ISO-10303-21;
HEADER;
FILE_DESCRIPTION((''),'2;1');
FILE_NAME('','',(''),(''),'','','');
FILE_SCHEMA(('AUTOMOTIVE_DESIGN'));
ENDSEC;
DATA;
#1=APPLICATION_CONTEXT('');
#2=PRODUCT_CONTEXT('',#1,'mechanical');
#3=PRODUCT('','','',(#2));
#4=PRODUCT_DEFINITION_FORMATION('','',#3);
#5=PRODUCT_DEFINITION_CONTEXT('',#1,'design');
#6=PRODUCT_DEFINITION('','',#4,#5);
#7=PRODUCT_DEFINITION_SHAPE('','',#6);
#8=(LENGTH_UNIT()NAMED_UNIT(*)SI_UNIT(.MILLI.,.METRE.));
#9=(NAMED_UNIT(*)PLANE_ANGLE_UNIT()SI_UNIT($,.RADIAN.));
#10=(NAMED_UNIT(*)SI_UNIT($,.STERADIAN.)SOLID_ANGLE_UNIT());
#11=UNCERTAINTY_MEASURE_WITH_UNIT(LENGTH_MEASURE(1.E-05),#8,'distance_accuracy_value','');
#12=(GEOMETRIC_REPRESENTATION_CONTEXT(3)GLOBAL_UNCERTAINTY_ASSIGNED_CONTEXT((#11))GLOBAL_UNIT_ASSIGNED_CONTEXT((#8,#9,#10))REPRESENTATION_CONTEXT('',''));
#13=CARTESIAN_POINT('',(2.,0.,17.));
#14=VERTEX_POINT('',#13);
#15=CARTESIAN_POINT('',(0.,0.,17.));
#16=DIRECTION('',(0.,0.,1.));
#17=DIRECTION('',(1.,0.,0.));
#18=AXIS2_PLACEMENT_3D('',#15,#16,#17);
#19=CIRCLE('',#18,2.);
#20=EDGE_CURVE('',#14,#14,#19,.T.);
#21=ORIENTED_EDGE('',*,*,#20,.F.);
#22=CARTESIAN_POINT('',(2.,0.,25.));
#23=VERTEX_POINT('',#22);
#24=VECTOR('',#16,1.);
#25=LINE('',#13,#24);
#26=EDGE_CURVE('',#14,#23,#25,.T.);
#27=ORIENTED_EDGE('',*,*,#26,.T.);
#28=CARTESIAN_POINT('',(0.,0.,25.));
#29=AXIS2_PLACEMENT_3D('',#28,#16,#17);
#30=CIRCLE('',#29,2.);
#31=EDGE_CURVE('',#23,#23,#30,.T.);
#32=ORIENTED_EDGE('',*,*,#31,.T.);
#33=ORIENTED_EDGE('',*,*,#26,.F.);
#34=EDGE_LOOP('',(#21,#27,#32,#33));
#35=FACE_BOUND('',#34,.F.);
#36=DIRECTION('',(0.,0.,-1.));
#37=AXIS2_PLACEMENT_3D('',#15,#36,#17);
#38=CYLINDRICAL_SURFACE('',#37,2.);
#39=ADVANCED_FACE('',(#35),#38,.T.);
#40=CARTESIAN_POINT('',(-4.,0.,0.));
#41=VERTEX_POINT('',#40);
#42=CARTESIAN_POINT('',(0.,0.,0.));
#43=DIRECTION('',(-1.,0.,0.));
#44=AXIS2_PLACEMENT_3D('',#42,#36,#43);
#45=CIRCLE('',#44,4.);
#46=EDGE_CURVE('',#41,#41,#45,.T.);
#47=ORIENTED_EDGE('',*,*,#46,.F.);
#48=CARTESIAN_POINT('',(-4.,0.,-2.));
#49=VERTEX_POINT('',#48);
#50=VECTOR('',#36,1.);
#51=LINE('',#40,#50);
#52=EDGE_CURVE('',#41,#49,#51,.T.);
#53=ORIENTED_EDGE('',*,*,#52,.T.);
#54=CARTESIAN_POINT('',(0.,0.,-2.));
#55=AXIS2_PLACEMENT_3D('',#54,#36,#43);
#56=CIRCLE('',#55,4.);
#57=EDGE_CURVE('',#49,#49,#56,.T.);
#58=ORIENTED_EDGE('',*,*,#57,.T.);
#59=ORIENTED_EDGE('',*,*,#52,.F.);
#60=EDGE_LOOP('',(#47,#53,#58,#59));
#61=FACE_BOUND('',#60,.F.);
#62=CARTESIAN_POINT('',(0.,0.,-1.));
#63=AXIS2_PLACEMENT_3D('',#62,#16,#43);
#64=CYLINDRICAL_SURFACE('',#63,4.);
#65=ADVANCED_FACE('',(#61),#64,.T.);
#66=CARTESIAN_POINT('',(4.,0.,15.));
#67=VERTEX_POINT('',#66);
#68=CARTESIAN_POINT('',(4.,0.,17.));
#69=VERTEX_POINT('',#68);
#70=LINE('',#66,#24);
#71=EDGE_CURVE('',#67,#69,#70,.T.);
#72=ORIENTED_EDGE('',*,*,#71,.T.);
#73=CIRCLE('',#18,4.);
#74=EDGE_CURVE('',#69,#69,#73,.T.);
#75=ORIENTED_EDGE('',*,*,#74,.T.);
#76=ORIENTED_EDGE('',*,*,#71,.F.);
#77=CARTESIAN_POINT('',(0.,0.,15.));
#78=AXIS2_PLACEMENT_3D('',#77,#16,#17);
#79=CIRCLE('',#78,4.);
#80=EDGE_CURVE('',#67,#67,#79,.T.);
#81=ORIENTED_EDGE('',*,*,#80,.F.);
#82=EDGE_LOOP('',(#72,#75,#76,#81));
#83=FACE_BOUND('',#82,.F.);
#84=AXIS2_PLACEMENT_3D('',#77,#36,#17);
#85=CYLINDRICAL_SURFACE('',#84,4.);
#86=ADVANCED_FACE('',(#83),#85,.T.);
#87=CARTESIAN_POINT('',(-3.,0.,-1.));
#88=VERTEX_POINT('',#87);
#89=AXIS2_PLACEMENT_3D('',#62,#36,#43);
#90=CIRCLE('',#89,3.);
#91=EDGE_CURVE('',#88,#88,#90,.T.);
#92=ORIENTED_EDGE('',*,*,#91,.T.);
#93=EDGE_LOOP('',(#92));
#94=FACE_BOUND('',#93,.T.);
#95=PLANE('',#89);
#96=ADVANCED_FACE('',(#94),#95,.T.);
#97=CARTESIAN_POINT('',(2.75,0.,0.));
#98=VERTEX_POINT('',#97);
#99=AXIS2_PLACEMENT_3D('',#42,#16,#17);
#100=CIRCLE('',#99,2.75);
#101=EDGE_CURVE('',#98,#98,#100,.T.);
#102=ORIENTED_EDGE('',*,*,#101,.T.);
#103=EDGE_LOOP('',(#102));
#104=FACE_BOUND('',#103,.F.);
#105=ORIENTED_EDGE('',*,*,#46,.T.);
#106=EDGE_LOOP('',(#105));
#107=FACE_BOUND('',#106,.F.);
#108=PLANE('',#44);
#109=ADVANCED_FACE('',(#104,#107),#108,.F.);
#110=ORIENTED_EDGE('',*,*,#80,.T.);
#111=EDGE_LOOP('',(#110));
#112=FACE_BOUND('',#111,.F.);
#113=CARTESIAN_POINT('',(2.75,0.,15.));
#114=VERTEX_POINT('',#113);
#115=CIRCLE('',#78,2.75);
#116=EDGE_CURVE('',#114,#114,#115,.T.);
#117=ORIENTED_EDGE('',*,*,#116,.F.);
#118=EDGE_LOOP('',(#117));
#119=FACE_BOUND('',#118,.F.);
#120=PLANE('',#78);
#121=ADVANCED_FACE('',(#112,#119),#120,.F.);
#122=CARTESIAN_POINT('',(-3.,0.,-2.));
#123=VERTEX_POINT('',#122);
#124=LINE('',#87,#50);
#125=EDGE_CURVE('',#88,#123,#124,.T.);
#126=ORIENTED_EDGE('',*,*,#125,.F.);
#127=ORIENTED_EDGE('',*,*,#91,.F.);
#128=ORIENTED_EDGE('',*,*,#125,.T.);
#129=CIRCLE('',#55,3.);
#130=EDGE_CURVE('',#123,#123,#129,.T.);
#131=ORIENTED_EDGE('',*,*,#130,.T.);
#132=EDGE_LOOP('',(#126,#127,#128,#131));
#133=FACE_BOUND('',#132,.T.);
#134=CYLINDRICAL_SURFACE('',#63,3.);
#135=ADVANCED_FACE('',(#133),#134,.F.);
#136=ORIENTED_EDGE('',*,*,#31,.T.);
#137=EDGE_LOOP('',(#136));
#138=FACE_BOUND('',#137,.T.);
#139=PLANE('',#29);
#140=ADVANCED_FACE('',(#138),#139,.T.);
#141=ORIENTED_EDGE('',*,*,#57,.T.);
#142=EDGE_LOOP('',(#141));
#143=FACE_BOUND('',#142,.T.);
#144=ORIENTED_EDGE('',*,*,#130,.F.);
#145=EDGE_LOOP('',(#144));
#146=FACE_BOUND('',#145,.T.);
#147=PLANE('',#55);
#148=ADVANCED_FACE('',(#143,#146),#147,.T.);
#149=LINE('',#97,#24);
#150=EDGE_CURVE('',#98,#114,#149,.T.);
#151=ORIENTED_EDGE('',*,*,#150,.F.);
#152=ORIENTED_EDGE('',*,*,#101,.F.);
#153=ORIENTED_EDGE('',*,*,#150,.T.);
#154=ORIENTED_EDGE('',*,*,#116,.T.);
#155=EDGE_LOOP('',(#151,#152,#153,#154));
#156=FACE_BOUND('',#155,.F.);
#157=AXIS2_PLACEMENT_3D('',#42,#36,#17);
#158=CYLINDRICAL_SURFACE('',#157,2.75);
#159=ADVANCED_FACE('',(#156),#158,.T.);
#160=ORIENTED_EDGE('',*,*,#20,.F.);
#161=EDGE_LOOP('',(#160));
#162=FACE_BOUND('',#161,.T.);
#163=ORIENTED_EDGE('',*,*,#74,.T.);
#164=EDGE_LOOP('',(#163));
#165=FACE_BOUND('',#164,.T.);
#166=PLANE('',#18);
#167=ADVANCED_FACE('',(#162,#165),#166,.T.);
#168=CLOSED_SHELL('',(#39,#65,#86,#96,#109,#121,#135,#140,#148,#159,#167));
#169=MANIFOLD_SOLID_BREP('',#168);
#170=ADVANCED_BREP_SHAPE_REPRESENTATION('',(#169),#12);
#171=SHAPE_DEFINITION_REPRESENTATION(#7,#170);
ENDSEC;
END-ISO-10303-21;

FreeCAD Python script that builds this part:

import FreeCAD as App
import Part
import Sketcher
from FreeCAD import Vector

doc = App.newDocument("Part")
body = doc.addObject("PartDesign::Body", "Body")

# Sketch on XY plane
sketch1 = body.newObject("Sketcher::SketchObject", "Sketch")
sketch1.AttachmentSupport = (doc.getObject("XY_Plane"), [""])
sketch1.MapMode = "FlatFace"
sketch1.addGeometry(Part.Circle(Vector(0, 0, 0), Vector(0, 0, 1), 2.8), False)
sketch1.addConstraint([
    Sketcher.Constraint("Coincident", 0, 3, -1, 1),
    Sketcher.Constraint("Diameter", 0, 5.5),
])
pad1 = body.newObject("PartDesign::Pad", "Pad")
pad1.Profile = sketch1
pad1.Length = 15

# Sketch on XY plane
sketch2 = body.newObject("Sketcher::SketchObject", "Sketch001")
sketch2.AttachmentSupport = (doc.getObject("XY_Plane"), [""])
sketch2.MapMode = "FlatFace"
sketch2.AttachmentOffset = App.Placement(Vector(0, 0, 15), App.Rotation())
sketch2.addGeometry(Part.Circle(Vector(0, 0, 0), Vector(0, 0, 1), 4), False)
sketch2.addConstraint([
    Sketcher.Constraint("Coincident", 0, 3, -1, 1),
    Sketcher.Constraint("Diameter", 0, 8.0),
])
pad2 = body.newObject("PartDesign::Pad", "Pad001")
pad2.Profile = sketch2
pad2.Length = 2

# Sketch on XY plane
sketch3 = body.newObject("Sketcher::SketchObject", "Sketch002")
sketch3.AttachmentSupport = (doc.getObject("XY_Plane"), [""])
sketch3.MapMode = "FlatFace"
sketch3.AttachmentOffset = App.Placement(Vector(0, 0, 17), App.Rotation())
sketch3.addGeometry(Part.Circle(Vector(0, 0, 0), Vector(0, 0, 1), 2), False)
sketch3.addConstraint([
    Sketcher.Constraint("Coincident", 0, 3, -1, 1),
    Sketcher.Constraint("Diameter", 0, 4.0),
])
pad3 = body.newObject("PartDesign::Pad", "Pad002")
pad3.Profile = sketch3
pad3.Length = 8

# Sketch on XY plane
sketch4 = body.newObject("Sketcher::SketchObject", "Sketch003")
sketch4.AttachmentSupport = (doc.getObject("XY_Plane"), [""])
sketch4.MapMode = "FlatFace"
sketch4.addGeometry(Part.Circle(Vector(0, 0, 0), Vector(0, 0, 1), 4), False)
sketch4.addConstraint([
    Sketcher.Constraint("Coincident", 0, 3, -1, 1),
    Sketcher.Constraint("Diameter", 0, 8.0),
])
pad4 = body.newObject("PartDesign::Pad", "Pad003")
pad4.Profile = sketch4
pad4.Length = 1
pad4.Reversed = True

# Sketch on XY plane
sketch5 = body.newObject("Sketcher::SketchObject", "Sketch004")
sketch5.AttachmentSupport = (doc.getObject("XY_Plane"), [""])
sketch5.MapMode = "FlatFace"
sketch5.AttachmentOffset = App.Placement(Vector(0, 0, -1), App.Rotation())
sketch5.addGeometry([
    Part.Circle(Vector(0, 0, 0), Vector(0, 0, 1), 4),
    Part.Circle(Vector(0, 0, 0), Vector(0, 0, 1), 3),
], False)
sketch5.addConstraint([
    Sketcher.Constraint("Coincident", 0, 3, -1, 1),
    Sketcher.Constraint("Coincident", 1, 3, -1, 1),
    Sketcher.Constraint("Diameter", 1, 6.0),
    Sketcher.Constraint("Diameter", 0, 8.0),
])
pad5 = body.newObject("PartDesign::Pad", "Pad004")
pad5.Profile = sketch5
pad5.Length = 1
pad5.Reversed = True

doc.recompute()
